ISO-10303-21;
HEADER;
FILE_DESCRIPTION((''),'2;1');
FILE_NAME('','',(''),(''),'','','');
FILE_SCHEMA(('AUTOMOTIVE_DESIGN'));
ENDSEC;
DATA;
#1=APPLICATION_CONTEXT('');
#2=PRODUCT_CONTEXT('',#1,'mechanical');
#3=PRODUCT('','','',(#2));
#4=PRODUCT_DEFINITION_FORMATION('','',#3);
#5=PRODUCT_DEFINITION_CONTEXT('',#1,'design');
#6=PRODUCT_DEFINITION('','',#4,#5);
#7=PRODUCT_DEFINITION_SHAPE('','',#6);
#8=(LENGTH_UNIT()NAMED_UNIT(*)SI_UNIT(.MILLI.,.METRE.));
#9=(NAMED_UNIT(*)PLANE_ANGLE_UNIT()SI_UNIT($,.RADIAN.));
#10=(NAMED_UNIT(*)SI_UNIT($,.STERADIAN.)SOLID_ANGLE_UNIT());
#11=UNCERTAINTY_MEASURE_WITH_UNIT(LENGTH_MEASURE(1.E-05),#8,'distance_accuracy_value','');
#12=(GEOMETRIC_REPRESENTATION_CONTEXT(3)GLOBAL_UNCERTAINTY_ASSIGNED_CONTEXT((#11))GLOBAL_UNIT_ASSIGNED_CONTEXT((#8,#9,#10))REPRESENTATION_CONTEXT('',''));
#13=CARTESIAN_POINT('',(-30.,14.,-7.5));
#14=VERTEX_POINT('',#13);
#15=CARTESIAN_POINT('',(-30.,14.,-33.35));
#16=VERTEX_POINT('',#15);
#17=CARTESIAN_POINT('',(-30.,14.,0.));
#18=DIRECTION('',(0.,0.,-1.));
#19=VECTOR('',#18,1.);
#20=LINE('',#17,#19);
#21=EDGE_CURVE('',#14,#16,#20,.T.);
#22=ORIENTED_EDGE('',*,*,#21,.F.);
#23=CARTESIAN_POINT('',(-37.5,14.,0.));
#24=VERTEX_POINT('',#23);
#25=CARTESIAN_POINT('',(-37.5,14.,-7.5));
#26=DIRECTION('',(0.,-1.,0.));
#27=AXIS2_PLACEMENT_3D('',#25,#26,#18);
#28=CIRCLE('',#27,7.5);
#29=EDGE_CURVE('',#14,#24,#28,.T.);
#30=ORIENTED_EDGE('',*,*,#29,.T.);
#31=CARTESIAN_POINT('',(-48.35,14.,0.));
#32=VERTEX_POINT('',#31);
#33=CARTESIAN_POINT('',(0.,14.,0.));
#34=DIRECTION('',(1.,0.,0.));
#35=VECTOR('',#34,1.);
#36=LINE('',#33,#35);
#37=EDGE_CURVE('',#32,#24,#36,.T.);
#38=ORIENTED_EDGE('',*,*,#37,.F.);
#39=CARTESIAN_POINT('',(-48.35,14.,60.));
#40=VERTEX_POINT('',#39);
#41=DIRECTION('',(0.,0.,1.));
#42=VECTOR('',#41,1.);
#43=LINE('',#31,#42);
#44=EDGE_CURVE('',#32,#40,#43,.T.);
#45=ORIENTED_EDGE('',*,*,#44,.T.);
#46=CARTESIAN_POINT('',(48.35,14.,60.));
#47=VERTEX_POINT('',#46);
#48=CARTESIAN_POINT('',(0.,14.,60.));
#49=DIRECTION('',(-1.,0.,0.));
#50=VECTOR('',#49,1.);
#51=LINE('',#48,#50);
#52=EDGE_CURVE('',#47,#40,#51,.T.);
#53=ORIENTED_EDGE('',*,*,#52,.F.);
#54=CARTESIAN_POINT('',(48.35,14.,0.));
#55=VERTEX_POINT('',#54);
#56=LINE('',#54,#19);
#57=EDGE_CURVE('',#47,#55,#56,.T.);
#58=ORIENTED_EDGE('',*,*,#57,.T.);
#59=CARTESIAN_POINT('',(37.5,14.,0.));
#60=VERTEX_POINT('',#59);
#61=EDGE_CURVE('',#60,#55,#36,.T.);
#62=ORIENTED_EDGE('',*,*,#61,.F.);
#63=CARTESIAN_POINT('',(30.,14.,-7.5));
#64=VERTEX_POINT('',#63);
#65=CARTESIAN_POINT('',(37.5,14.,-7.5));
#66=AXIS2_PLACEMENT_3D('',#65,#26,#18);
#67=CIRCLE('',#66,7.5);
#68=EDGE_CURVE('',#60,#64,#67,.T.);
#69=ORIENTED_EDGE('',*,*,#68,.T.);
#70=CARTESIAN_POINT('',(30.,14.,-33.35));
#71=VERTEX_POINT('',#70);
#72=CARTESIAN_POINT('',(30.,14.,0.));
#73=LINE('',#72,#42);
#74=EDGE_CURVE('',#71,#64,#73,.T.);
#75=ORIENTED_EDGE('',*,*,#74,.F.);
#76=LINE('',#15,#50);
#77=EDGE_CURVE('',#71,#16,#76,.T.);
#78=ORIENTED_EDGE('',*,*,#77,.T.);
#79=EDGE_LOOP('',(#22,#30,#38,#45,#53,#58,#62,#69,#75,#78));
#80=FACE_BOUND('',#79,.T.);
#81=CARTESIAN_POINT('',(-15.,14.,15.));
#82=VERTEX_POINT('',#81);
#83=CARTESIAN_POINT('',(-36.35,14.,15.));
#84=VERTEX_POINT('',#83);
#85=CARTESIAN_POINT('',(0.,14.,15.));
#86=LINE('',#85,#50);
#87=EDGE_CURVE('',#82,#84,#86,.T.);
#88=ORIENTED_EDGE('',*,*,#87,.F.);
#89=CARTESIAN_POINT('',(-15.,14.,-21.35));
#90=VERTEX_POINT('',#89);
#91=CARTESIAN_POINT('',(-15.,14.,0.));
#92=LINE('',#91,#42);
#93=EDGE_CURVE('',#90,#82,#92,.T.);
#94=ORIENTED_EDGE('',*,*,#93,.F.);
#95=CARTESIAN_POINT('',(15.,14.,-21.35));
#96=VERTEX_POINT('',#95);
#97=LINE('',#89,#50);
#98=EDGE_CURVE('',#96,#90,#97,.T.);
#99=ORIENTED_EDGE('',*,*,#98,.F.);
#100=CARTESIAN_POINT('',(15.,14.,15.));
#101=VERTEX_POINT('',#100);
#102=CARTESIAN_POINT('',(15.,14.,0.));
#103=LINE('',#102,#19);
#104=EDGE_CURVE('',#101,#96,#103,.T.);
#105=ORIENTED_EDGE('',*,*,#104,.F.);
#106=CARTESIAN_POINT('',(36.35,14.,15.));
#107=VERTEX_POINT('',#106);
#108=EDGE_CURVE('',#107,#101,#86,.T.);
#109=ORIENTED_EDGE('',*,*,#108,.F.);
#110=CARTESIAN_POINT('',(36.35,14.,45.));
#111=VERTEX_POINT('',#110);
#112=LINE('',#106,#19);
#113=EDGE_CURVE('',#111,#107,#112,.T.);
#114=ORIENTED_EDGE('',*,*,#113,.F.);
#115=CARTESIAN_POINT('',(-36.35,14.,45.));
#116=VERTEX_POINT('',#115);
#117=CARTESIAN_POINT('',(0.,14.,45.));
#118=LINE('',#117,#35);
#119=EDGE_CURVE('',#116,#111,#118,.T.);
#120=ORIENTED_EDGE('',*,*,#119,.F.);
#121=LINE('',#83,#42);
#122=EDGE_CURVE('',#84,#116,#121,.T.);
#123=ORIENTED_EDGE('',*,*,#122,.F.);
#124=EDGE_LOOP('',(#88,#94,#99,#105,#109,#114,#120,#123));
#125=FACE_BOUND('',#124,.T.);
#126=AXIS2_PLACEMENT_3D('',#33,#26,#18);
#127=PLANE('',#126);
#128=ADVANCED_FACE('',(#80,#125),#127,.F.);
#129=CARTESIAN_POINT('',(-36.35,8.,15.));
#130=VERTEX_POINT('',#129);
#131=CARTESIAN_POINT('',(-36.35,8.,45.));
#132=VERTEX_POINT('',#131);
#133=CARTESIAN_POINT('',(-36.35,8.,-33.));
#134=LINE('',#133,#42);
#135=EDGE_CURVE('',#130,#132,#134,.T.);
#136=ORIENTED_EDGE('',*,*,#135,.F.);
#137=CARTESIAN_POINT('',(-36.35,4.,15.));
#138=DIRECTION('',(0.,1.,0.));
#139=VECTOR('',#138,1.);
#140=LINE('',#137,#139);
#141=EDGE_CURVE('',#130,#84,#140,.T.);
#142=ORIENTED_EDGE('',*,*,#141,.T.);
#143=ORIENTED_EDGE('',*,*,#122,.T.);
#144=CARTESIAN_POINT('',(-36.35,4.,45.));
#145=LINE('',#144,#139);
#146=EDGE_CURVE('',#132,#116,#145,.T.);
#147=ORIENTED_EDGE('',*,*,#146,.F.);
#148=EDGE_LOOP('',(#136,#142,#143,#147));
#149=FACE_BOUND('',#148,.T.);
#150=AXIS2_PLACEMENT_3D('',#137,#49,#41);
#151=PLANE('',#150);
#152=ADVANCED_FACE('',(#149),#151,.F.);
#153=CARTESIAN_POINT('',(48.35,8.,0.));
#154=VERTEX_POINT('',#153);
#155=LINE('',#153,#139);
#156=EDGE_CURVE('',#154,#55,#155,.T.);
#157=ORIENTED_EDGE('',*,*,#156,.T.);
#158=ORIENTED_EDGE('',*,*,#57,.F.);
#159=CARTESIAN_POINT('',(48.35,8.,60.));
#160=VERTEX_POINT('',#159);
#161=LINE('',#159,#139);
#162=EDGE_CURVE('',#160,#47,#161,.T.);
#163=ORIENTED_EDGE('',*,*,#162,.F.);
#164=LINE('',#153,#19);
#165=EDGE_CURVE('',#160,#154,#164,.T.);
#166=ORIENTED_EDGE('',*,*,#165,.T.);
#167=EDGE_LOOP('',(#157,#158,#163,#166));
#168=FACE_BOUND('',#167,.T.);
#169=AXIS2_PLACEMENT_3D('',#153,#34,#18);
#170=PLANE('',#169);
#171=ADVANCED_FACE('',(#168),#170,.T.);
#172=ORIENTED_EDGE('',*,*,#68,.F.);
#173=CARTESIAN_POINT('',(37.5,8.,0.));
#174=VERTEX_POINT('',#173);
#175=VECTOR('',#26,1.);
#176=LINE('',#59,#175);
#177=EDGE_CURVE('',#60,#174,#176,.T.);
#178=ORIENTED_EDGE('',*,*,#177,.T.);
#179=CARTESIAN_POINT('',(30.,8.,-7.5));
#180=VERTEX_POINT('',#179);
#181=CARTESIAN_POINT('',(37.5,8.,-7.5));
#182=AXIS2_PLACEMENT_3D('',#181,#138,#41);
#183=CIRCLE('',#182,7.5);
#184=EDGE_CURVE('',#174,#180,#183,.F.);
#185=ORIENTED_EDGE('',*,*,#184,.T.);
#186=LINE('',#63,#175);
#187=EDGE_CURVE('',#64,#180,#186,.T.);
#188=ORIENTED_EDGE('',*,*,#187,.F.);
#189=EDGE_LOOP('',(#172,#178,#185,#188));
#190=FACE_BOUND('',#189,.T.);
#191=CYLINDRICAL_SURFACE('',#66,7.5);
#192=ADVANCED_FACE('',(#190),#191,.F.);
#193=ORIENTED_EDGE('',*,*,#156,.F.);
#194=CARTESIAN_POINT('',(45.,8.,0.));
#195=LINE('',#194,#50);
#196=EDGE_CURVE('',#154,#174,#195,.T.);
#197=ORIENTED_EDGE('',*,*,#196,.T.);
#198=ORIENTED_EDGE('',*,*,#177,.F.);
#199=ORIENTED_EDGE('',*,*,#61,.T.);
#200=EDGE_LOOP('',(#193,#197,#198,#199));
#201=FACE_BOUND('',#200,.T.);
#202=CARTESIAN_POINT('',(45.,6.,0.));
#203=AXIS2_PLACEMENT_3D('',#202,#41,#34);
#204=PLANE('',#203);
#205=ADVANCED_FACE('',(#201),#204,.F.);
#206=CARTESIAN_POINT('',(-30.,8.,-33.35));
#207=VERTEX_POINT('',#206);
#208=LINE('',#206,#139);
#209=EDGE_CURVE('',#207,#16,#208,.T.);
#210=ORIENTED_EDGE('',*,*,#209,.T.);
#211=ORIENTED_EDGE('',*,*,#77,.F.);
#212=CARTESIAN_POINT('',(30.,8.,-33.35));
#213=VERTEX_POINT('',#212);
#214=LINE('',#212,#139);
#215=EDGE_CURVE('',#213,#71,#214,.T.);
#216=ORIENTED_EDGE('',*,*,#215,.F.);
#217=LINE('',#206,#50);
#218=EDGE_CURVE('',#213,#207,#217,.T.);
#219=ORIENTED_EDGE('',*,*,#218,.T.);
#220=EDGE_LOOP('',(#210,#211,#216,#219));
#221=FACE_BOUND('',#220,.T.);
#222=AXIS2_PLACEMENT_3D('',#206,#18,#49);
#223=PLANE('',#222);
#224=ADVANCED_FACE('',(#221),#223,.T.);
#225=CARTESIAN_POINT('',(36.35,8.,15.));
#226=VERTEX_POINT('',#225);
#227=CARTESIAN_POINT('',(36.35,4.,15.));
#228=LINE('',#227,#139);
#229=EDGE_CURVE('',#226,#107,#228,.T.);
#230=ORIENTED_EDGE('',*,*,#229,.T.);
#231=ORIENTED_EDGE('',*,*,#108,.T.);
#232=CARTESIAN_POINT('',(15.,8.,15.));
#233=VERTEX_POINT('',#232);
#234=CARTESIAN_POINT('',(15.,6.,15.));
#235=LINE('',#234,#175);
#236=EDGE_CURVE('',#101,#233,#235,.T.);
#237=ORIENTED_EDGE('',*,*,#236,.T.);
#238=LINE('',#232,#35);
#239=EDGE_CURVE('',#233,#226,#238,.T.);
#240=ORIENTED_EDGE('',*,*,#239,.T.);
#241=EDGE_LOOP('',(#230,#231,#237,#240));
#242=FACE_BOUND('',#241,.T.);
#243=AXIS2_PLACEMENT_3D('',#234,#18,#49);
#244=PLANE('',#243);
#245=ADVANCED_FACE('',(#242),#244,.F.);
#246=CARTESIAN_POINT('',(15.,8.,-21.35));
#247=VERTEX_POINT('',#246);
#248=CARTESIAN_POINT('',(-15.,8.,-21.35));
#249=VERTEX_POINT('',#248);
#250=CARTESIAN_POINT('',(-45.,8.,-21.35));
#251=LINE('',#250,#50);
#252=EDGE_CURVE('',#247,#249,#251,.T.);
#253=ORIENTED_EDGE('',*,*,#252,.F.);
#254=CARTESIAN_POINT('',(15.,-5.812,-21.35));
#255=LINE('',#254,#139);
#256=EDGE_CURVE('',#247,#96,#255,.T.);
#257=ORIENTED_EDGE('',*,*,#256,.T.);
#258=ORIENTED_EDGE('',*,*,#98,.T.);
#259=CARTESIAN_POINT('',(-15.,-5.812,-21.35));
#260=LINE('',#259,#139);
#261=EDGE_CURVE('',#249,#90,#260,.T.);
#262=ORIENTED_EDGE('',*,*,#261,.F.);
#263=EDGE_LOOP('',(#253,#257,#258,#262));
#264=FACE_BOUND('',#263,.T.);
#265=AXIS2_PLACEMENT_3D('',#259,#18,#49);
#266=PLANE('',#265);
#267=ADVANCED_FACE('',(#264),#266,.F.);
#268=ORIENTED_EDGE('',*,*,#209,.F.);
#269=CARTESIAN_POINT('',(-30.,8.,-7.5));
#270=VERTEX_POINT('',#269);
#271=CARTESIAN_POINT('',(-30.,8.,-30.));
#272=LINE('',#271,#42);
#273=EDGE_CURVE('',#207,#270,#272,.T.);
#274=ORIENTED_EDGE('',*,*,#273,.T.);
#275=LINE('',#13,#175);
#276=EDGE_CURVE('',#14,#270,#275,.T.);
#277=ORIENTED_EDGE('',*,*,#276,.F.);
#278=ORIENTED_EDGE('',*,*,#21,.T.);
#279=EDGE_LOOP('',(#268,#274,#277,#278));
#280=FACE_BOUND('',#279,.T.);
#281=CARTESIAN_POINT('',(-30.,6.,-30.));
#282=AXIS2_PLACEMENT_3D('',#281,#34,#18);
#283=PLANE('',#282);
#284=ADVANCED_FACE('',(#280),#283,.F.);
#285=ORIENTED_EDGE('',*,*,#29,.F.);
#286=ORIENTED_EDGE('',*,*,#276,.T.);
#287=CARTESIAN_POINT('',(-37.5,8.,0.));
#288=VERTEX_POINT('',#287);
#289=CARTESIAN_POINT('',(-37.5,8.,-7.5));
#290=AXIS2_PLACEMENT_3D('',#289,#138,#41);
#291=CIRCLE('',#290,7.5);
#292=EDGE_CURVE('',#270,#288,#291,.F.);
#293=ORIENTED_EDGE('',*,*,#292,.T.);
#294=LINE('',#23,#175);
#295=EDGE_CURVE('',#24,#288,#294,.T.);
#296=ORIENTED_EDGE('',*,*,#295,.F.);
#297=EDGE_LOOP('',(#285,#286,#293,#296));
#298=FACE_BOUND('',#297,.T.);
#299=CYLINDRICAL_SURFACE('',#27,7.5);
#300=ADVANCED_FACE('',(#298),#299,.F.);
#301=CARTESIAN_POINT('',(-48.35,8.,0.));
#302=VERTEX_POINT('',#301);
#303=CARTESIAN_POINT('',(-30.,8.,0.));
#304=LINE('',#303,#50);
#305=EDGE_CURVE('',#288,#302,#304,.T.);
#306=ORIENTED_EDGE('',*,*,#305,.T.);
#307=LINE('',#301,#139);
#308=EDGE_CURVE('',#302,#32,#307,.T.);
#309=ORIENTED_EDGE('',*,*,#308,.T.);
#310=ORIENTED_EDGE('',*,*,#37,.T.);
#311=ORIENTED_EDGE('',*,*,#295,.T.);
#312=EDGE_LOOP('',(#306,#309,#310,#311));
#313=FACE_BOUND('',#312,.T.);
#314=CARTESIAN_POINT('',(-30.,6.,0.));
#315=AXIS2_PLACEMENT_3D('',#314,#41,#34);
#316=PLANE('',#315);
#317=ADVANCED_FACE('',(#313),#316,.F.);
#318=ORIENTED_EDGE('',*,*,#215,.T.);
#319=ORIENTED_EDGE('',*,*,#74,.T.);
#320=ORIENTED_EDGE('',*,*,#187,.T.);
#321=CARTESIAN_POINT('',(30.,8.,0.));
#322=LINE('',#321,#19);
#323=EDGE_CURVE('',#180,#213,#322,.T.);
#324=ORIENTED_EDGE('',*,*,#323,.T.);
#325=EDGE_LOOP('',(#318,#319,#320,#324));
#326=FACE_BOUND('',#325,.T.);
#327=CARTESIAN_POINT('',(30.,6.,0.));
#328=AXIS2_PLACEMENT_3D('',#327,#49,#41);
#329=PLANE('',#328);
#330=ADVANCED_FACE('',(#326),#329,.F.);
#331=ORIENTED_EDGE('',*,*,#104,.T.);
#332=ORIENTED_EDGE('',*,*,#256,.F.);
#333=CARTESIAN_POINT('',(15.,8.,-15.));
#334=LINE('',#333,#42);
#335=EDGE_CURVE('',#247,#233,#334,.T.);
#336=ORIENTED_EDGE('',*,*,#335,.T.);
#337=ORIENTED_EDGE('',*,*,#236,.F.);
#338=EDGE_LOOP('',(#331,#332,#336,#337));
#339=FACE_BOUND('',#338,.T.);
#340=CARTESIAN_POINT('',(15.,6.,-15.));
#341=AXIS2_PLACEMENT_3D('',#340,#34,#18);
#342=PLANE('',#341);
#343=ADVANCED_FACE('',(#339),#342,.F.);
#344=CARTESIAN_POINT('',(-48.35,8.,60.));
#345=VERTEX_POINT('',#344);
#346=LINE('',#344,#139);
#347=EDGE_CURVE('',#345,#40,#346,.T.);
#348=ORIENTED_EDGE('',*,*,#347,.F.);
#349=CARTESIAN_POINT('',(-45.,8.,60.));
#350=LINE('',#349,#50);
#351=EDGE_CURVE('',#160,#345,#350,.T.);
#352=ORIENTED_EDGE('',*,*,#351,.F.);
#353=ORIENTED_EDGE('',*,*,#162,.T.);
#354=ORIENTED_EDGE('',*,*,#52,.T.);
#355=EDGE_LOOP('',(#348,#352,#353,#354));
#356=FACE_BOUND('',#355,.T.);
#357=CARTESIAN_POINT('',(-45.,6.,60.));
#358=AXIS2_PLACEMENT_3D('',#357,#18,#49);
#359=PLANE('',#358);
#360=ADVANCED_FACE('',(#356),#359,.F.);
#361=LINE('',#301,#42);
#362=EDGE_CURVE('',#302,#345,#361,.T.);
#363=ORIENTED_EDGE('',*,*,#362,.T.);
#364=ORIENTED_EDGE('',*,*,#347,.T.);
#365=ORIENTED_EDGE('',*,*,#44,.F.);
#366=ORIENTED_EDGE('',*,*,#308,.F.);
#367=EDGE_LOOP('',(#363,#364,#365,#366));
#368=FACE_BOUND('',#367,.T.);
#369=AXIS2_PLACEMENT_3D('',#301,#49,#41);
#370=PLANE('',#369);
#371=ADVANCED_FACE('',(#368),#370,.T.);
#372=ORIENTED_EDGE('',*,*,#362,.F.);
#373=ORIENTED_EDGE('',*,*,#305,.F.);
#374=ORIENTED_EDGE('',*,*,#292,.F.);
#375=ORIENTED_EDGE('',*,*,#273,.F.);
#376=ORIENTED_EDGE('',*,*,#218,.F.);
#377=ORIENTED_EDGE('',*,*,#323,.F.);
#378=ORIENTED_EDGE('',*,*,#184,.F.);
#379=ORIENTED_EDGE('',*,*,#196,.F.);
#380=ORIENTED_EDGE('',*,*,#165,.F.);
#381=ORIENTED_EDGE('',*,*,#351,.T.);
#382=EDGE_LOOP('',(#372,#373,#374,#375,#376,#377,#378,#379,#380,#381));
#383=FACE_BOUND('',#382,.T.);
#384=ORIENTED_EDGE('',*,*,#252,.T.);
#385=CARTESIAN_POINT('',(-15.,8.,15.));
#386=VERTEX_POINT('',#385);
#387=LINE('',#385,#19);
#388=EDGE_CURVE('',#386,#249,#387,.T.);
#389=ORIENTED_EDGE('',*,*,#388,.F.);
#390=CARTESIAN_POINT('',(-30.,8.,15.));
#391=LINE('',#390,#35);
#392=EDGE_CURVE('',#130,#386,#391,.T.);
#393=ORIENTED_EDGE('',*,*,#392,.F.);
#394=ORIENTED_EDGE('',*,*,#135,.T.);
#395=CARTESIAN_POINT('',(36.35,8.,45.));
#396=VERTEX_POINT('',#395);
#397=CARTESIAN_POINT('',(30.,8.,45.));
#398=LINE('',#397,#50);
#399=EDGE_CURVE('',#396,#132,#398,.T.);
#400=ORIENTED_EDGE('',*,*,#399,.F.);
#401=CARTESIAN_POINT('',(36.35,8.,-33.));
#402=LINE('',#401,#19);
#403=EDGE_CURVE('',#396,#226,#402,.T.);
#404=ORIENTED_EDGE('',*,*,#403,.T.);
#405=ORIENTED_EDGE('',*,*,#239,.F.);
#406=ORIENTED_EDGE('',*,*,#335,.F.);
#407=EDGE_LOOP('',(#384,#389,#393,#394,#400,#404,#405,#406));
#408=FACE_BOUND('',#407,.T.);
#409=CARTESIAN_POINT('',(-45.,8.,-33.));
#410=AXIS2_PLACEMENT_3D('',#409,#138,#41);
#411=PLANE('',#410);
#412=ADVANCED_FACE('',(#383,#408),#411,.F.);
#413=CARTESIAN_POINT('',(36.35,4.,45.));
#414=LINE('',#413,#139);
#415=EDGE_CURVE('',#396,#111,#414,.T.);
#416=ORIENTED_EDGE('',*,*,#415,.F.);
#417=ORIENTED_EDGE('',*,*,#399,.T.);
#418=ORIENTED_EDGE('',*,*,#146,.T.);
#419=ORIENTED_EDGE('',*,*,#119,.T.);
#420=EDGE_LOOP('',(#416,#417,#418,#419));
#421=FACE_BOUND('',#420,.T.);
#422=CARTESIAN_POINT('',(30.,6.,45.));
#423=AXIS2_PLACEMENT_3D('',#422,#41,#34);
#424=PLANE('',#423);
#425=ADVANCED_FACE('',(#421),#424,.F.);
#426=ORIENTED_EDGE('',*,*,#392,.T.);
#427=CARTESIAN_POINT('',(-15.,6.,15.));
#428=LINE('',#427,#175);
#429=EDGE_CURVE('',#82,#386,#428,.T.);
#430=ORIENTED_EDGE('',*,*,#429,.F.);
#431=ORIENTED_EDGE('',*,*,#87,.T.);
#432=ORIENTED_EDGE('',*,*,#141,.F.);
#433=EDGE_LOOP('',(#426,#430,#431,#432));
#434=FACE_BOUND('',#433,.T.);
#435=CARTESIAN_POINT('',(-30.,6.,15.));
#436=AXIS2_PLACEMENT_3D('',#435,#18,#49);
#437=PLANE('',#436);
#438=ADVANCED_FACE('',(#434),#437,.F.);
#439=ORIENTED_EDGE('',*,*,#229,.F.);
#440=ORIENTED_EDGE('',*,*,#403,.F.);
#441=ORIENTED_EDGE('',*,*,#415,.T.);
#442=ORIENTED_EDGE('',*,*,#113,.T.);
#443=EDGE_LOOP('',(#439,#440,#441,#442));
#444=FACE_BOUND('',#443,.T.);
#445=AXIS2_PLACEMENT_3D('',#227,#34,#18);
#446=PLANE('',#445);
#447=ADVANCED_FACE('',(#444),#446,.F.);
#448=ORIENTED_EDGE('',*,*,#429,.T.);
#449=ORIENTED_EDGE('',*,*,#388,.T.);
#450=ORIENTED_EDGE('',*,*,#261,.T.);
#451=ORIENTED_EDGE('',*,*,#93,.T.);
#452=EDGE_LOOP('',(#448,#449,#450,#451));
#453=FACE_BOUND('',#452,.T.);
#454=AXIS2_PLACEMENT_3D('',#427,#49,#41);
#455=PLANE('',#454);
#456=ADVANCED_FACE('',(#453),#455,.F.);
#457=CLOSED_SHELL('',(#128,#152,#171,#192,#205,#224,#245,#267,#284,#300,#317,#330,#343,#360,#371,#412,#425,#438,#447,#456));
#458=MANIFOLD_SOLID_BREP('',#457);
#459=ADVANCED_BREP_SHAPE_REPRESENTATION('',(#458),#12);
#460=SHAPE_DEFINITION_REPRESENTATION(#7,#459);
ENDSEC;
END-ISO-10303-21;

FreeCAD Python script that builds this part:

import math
import FreeCAD as App
import Part
import Sketcher

V = App.Vector
Q = App.Units.Quantity

doc = App.newDocument("Part")
body = doc.addObject("PartDesign::Body", "Body")

# Sketch on XZ plane
sketch1 = doc.addObject("Sketcher::SketchObject", "Sketch")
body.addObject(sketch1)
sketch1.AttachmentSupport = (doc.XZ_Plane, [""])
sketch1.MapMode = "FlatFace"
sketch1.addGeometry([
    Part.LineSegment(V(-15, -15, 0), V(-15, 15, 0)),
    Part.LineSegment(V(-15, 15, 0), V(15, 15, 0)),
    Part.LineSegment(V(15, 15, 0), V(15, -15, 0)),
    Part.LineSegment(V(15, -15, 0), V(-15, -15, 0)),
], False)
sketch1.addConstraint([
    Sketcher.Constraint("Coincident", 0, 2, 1, 1),
    Sketcher.Constraint("Coincident", 1, 2, 2, 1),
    Sketcher.Constraint("Coincident", 2, 2, 3, 1),
    Sketcher.Constraint("Coincident", 3, 2, 0, 1),
    Sketcher.Constraint("Vertical", 0),
    Sketcher.Constraint("Horizontal", 1),
    Sketcher.Constraint("Vertical", 2),
    Sketcher.Constraint("Horizontal", 3),
    Sketcher.Constraint("Symmetric", 0, 2, 2, 2, -1, 1),
    Sketcher.Constraint("Equal", 3, 0),
    Sketcher.Constraint("DistanceX", 1, 1, 1, 2, Q("30 mm")),
])
pad1 = doc.addObject("PartDesign::Pad", "Pad")
body.addObject(pad1)
pad1.Profile = sketch1
pad1.Length = 3
pad1.Reversed = True
body2 = doc.addObject("PartDesign::Body", "Body001")

# Sketch on XZ plane
sketch2 = doc.addObject("Sketcher::SketchObject", "Sketch001")
body2.addObject(sketch2)
sketch2.AttachmentSupport = (doc.getObject("XZ_Plane001"), [""])
sketch2.MapMode = "FlatFace"
sketch2.AttachmentOffset = App.Placement(V(0, 0, -3), App.Rotation())
sketch2.addGeometry([
    Part.LineSegment(V(-30, 15, 0), V(-30, 45, 0)),
    Part.LineSegment(V(-30, 45, 0), V(-15, 45, 0)),
    Part.LineSegment(V(-15, 45, 0), V(-15, 15, 0)),
    Part.LineSegment(V(-15, 15, 0), V(-30, 15, 0)),
], False)
sketch2.addConstraint([
    Sketcher.Constraint("Coincident", 0, 2, 1, 1),
    Sketcher.Constraint("Coincident", 1, 2, 2, 1),
    Sketcher.Constraint("Coincident", 2, 2, 3, 1),
    Sketcher.Constraint("Coincident", 3, 2, 0, 1),
    Sketcher.Constraint("Vertical", 0),
    Sketcher.Constraint("Horizontal", 1),
    Sketcher.Constraint("Vertical", 2),
    Sketcher.Constraint("Horizontal", 3),
    Sketcher.Constraint("DistanceX", 1, 1, 1, 2, Q("15 mm")),
    Sketcher.Constraint("DistanceY", 0, 1, 0, 2, Q("30 mm")),
    Sketcher.Constraint("DistanceX", 0, 2, -1, 1, Q("30 mm")),
    Sketcher.Constraint("DistanceY", -1, 1, 0, 2, Q("45 mm")),
])
pad2 = doc.addObject("PartDesign::Pad", "Pad001")
body2.addObject(pad2)
pad2.Profile = sketch2
pad2.Length = 3
body3 = doc.addObject("PartDesign::Body", "Body002")

# Sketch on XZ plane
sketch3 = doc.addObject("Sketcher::SketchObject", "Sketch002")
body3.addObject(sketch3)
sketch3.AttachmentSupport = (doc.getObject("XZ_Plane002"), [""])
sketch3.MapMode = "FlatFace"
sketch3.AttachmentOffset = App.Placement(V(0, 0, -3), App.Rotation())
sketch3.addGeometry([
    Part.LineSegment(V(15, 15, 0), V(15, 45, 0)),
    Part.LineSegment(V(15, 45, 0), V(30, 45, 0)),
    Part.LineSegment(V(30, 45, 0), V(30, 15, 0)),
    Part.LineSegment(V(30, 15, 0), V(15, 15, 0)),
], False)
sketch3.addConstraint([
    Sketcher.Constraint("Coincident", 0, 2, 1, 1),
    Sketcher.Constraint("Coincident", 1, 2, 2, 1),
    Sketcher.Constraint("Coincident", 2, 2, 3, 1),
    Sketcher.Constraint("Coincident", 3, 2, 0, 1),
    Sketcher.Constraint("Vertical", 0),
    Sketcher.Constraint("Horizontal", 1),
    Sketcher.Constraint("Vertical", 2),
    Sketcher.Constraint("Horizontal", 3),
    Sketcher.Constraint("DistanceX", 1, 1, 1, 2, Q("15 mm")),
    Sketcher.Constraint("DistanceY", 0, 1, 0, 2, Q("30 mm")),
    Sketcher.Constraint("DistanceX", -1, 1, 0, 2, Q("15 mm")),
    Sketcher.Constraint("DistanceY", -1, 1, 0, 2, Q("45 mm")),
])
pad3 = doc.addObject("PartDesign::Pad", "Pad002")
body3.addObject(pad3)
pad3.Profile = sketch3
pad3.Length = 3
body.AllowCompound = True
doc.recompute()

boolean = doc.addObject("PartDesign::Boolean", "Boolean")
body.addObject(boolean)
boolean.Type = "Fuse"
boolean.addObjects([body2])
doc.recompute()

boolean2 = doc.addObject("PartDesign::Boolean", "Boolean001")
body.addObject(boolean2)
boolean2.Type = "Fuse"
boolean2.addObjects([body3])

# Sketch on XZ plane
sketch4 = doc.addObject("Sketcher::SketchObject", "Sketch003")
body.addObject(sketch4)
sketch4.AttachmentSupport = (doc.XZ_Plane, [""])
sketch4.MapMode = "FlatFace"
sketch4.AttachmentOffset = App.Placement(V(0, 0, -3), App.Rotation())
sketch4.addGeometry([
    Part.LineSegment(V(-15, 15, 0), V(-15, 45, 0)),
    Part.LineSegment(V(-15, 45, 0), V(15, 45, 0)),
    Part.LineSegment(V(15, 45, 0), V(15, 15, 0)),
    Part.LineSegment(V(15, 15, 0), V(-15, 15, 0)),
], False)
sketch4.addConstraint([
    Sketcher.Constraint("Coincident", 0, 2, 1, 1),
    Sketcher.Constraint("Coincident", 1, 2, 2, 1),
    Sketcher.Constraint("Coincident", 2, 2, 3, 1),
    Sketcher.Constraint("Coincident", 3, 2, 0, 1),
    Sketcher.Constraint("Vertical", 0),
    Sketcher.Constraint("Horizontal", 1),
    Sketcher.Constraint("Vertical", 2),
    Sketcher.Constraint("Horizontal", 3),
    Sketcher.Constraint("Equal", 3, 0),
    Sketcher.Constraint("DistanceX", 1, 1, 1, 2, Q("30 mm")),
    Sketcher.Constraint("DistanceX", 0, 2, -1, 1, Q("15 mm")),
    Sketcher.Constraint("DistanceY", -1, 1, 0, 2, Q("45 mm")),
])
pad4 = doc.addObject("PartDesign::Pad", "Pad003")
body.addObject(pad4)
pad4.Profile = sketch4
pad4.Length = 3

# Sketch on XZ plane
sketch5 = doc.addObject("Sketcher::SketchObject", "Sketch004")
body.addObject(sketch5)
sketch5.AttachmentSupport = (doc.XZ_Plane, [""])
sketch5.MapMode = "FlatFace"
sketch5.AttachmentOffset = App.Placement(V(0, 0, -3), App.Rotation())
sketch5.addGeometry([
    Part.LineSegment(V(-30, 0, 0), V(-45, 0, 0)),  # 0
    Part.LineSegment(V(-45, 0, 0), V(-45, 60, 0)),  # 1
    Part.LineSegment(V(-45, 60, 0), V(45, 60, 0)),  # 2
    Part.LineSegment(V(45, 60, 0), V(45, 0, 0)),  # 3
    Part.LineSegment(V(45, 0, 0), V(30, 0, 0)),  # 4
    Part.LineSegment(V(30, 0, 0), V(30, -30, 0)),  # 5
    Part.LineSegment(V(30, -30, 0), V(-30, -30, 0)),  # 6
    Part.LineSegment(V(-30, -30, 0), V(-30, 0, 0)),  # 7
], False)
sketch5.addConstraint([
    Sketcher.Constraint("Coincident", 0, 2, 1, 1),
    Sketcher.Constraint("Coincident", 1, 2, 2, 1),
    Sketcher.Constraint("Coincident", 2, 2, 3, 1),
    Sketcher.Constraint("Coincident", 3, 2, 4, 1),
    Sketcher.Constraint("Coincident", 4, 2, 5, 1),
    Sketcher.Constraint("Coincident", 5, 2, 6, 1),
    Sketcher.Constraint("Coincident", 6, 2, 7, 1),
    Sketcher.Constraint("Coincident", 7, 2, 0, 1),
    Sketcher.Constraint("Horizontal", 0),
    Sketcher.Constraint("Vertical", 1),
    Sketcher.Constraint("Horizontal", 2),
    Sketcher.Constraint("Vertical", 3),
    Sketcher.Constraint("Horizontal", 4),
    Sketcher.Constraint("Vertical", 5),
    Sketcher.Constraint("Horizontal", 6),
    Sketcher.Constraint("Vertical", 7),
    Sketcher.Constraint("Symmetric", 0, 2, 3, 2, -1, 1),
    Sketcher.Constraint("Symmetric", 4, 2, 7, 2, -2),
    Sketcher.Constraint("Equal", 6, 1),
    Sketcher.Constraint("DistanceX", 0, 2, 0, 1, Q("15 mm")),
    Sketcher.Constraint("DistanceX", 2, 1, 2, 2, Q("90 mm")),
    Sketcher.Constraint("DistanceY", 5, 2, 5, 1, Q("30 mm")),
])
pad5 = doc.addObject("PartDesign::Pad", "Pad004")
body.addObject(pad5)
pad5.Profile = sketch5
pad5.Length = 3
pad5.Reversed = True

# Sketch on XZ plane
sketch6 = doc.addObject("Sketcher::SketchObject", "Sketch005")
body.addObject(sketch6)
sketch6.AttachmentSupport = (doc.XZ_Plane, [""])
sketch6.MapMode = "FlatFace"
sketch6.addGeometry([
    Part.LineSegment(V(-30, 45, 0), V(-30, 15, 0)),  # 0
    Part.LineSegment(V(-30, 15, 0), V(-15, 15, 0)),  # 1
    Part.LineSegment(V(-15, 15, 0), V(-15, -15, 0)),  # 2
    Part.LineSegment(V(-15, -15, 0), V(15, -15, 0)),  # 3
    Part.LineSegment(V(15, -15, 0), V(15, 15, 0)),  # 4
    Part.LineSegment(V(15, 15, 0), V(30, 15, 0)),  # 5
    Part.LineSegment(V(30, 15, 0), V(30, 45, 0)),  # 6
    Part.LineSegment(V(30, 45, 0), V(-30, 45, 0)),  # 7
], False)
sketch6.addConstraint([
    Sketcher.Constraint("Coincident", 0, 2, 1, 1),
    Sketcher.Constraint("Coincident", 1, 2, 2, 1),
    Sketcher.Constraint("Coincident", 2, 2, 3, 1),
    Sketcher.Constraint("Coincident", 3, 2, 4, 1),
    Sketcher.Constraint("Coincident", 4, 2, 5, 1),
    Sketcher.Constraint("Coincident", 5, 2, 6, 1),
    Sketcher.Constraint("Coincident", 6, 2, 7, 1),
    Sketcher.Constraint("Coincident", 7, 2, 0, 1),
    Sketcher.Constraint("Vertical", 0),
    Sketcher.Constraint("Horizontal", 1),
    Sketcher.Constraint("Vertical", 2),
    Sketcher.Constraint("Horizontal", 3),
    Sketcher.Constraint("Vertical", 4),
    Sketcher.Constraint("Horizontal", 5),
    Sketcher.Constraint("Vertical", 6),
    Sketcher.Constraint("Horizontal", 7),
    Sketcher.Constraint("Symmetric", 1, 2, 3, 2, -1, 1),
    Sketcher.Constraint("Symmetric", 0, 2, 5, 2, -2),
    Sketcher.Constraint("Equal", 3, 0),
    Sketcher.Constraint("Equal", 0, 2),
    Sketcher.Constraint("DistanceX", 1, 1, 1, 2, Q("15 mm")),
    Sketcher.Constraint("DistanceX", 3, 1, 3, 2, Q("30 mm")),
])
pocket1 = doc.addObject("PartDesign::Pocket", "Pocket")
body.addObject(pocket1)
pocket1.Profile = sketch6
pocket1.Length = 6

# Sketch on XZ plane
sketch7 = doc.addObject("Sketcher::SketchObject", "Sketch006")
body.addObject(sketch7)
sketch7.AttachmentSupport = (doc.XZ_Plane, [""])
sketch7.MapMode = "FlatFace"
sketch7.AttachmentOffset = App.Placement(V(0, 0, -3), App.Rotation())
sketch7.addGeometry([
    Part.LineSegment(V(-45, 0, 0), V(-38, 0, 0)),  # 0
    Part.ArcOfCircle(Part.Circle(V(-38, -8, 0), V(0, 0, 1), 8), math.radians(0), math.radians(90)),  # 1
    Part.LineSegment(V(-30, -8, 0), V(-30, -30, 0)),  # 2
    Part.LineSegment(V(-30, -30, 0), V(30, -30, 0)),  # 3
    Part.LineSegment(V(30, -30, 0), V(30, -8, 0)),  # 4
    Part.ArcOfCircle(Part.Circle(V(38, -8, 0), V(0, 0, 1), 8), math.radians(90), math.radians(180)),  # 5
    Part.LineSegment(V(38, 0, 0), V(45, 0, 0)),  # 6
    Part.LineSegment(V(45, 0, 0), V(45, 60, 0)),  # 7
    Part.LineSegment(V(45, 60, 0), V(-45, 60, 0)),  # 8
    Part.LineSegment(V(-45, 60, 0), V(-45, 0, 0)),  # 9
    Part.LineSegment(V(-15, -15, 0), V(-15, 15, 0)),  # 10
    Part.LineSegment(V(-15, 15, 0), V(-30, 15, 0)),  # 11
    Part.LineSegment(V(-30, 15, 0), V(-30, 45, 0)),  # 12
    Part.LineSegment(V(-30, 45, 0), V(30, 45, 0)),  # 13
    Part.LineSegment(V(30, 45, 0), V(30, 15, 0)),  # 14
    Part.LineSegment(V(30, 15, 0), V(15, 15, 0)),  # 15
    Part.LineSegment(V(15, 15, 0), V(15, -15, 0)),  # 16
    Part.LineSegment(V(15, -15, 0), V(-15, -15, 0)),  # 17
], False)
sketch7.addConstraint([
    Sketcher.Constraint("Tangent", 0, 2, 1, 2),
    Sketcher.Constraint("Tangent", 1, 1, 2, 1),
    Sketcher.Constraint("Coincident", 2, 2, 3, 1),
    Sketcher.Constraint("Coincident", 3, 2, 4, 1),
    Sketcher.Constraint("Tangent", 4, 2, 5, 2),
    Sketcher.Constraint("Tangent", 5, 1, 6, 1),
    Sketcher.Constraint("Coincident", 6, 2, 7, 1),
    Sketcher.Constraint("Coincident", 7, 2, 8, 1),
    Sketcher.Constraint("Coincident", 8, 2, 9, 1),
    Sketcher.Constraint("Coincident", 9, 2, 0, 1),
    Sketcher.Constraint("Coincident", 10, 2, 11, 1),
    Sketcher.Constraint("Coincident", 11, 2, 12, 1),
    Sketcher.Constraint("Coincident", 12, 2, 13, 1),
    Sketcher.Constraint("Coincident", 13, 2, 14, 1),
    Sketcher.Constraint("Coincident", 14, 2, 15, 1),
    Sketcher.Constraint("Coincident", 15, 2, 16, 1),
    Sketcher.Constraint("Coincident", 16, 2, 17, 1),
    Sketcher.Constraint("Coincident", 17, 2, 10, 1),
    Sketcher.Constraint("Horizontal", 0),
    Sketcher.Constraint("Vertical", 2),
    Sketcher.Constraint("Horizontal", 3),
    Sketcher.Constraint("Vertical", 4),
    Sketcher.Constraint("Horizontal", 6),
    Sketcher.Constraint("Vertical", 7),
    Sketcher.Constraint("Horizontal", 8),
    Sketcher.Constraint("Vertical", 9),
    Sketcher.Constraint("Vertical", 10),
    Sketcher.Constraint("Horizontal", 11),
    Sketcher.Constraint("Vertical", 12),
    Sketcher.Constraint("Horizontal", 13),
    Sketcher.Constraint("Vertical", 14),
    Sketcher.Constraint("Horizontal", 15),
    Sketcher.Constraint("Vertical", 16),
    Sketcher.Constraint("Horizontal", 17),
    Sketcher.Constraint("Equal", 1, 5),
    Sketcher.Constraint("Symmetric", 0, 2, 5, 1, -1, 1),
    Sketcher.Constraint("Symmetric", 10, 2, 16, 2, -1, 1),
    Sketcher.Constraint("Symmetric", 6, 2, 9, 2, -2),
    Sketcher.Constraint("Symmetric", 11, 2, 14, 2, -2),
    Sketcher.Constraint("Vertical", 2, 2, 11, 2),
    Sketcher.Constraint("Equal", 13, 7),
    Sketcher.Constraint("Equal", 17, 10),
    Sketcher.Constraint("Equal", 10, 12),
    Sketcher.Constraint("Radius", 1, Q("7.5 mm")),
    Sketcher.Constraint("DistanceX", 3, 1, 3, 2, Q("60 mm")),
    Sketcher.Constraint("DistanceX", 8, 2, 8, 1, Q("90 mm")),
    Sketcher.Constraint("DistanceX", 11, 2, 11, 1, Q("15 mm")),
    Sketcher.Constraint("DistanceY", 2, 2, 2, 1, Q("22.5 mm")),
])
pad6 = doc.addObject("PartDesign::Pad", "Pad005")
body.addObject(pad6)
pad6.Profile = sketch7
pad6.Length = 11
pad6.Reversed = True

# Sketch on XZ plane
sketch8 = doc.addObject("Sketcher::SketchObject", "Sketch007")
body.addObject(sketch8)
sketch8.AttachmentSupport = (doc.XZ_Plane, [""])
sketch8.MapMode = "FlatFace"
sketch8.AttachmentOffset = App.Placement(V(0, 0, -14), App.Rotation())
sketch8.addGeometry([
    Part.LineSegment(V(-15, -18.2, 0), V(-15, -15, 0)),
    Part.LineSegment(V(-15, -15, 0), V(15, -15, 0)),
    Part.LineSegment(V(15, -15, 0), V(15, -18.2, 0)),
    Part.LineSegment(V(15, -18.2, 0), V(-15, -18.2, 0)),
], False)
sketch8.addConstraint([
    Sketcher.Constraint("Coincident", 0, 2, 1, 1),
    Sketcher.Constraint("Coincident", 1, 2, 2, 1),
    Sketcher.Constraint("Coincident", 2, 2, 3, 1),
    Sketcher.Constraint("Coincident", 3, 2, 0, 1),
    Sketcher.Constraint("Vertical", 0),
    Sketcher.Constraint("Horizontal", 1),
    Sketcher.Constraint("Vertical", 2),
    Sketcher.Constraint("Horizontal", 3),
    Sketcher.Constraint("DistanceX", 1, 1, 1, 2, Q("30 mm")),
    Sketcher.Constraint("DistanceX", 0, 2, -1, 1, Q("15 mm")),
    Sketcher.Constraint("DistanceY", 0, 2, -1, 1, Q("15 mm")),
    Sketcher.Constraint("DistanceY", 0, 1, 0, 2, Q("3.175 mm")),
])
pocket2 = doc.addObject("PartDesign::Pocket", "Pocket001")
body.addObject(pocket2)
pocket2.Profile = sketch8
pocket2.Length = 18.542
pocket2.Reversed = True

# Sketch on XZ plane
sketch9 = doc.addObject("Sketcher::SketchObject", "Sketch008")
body.addObject(sketch9)
sketch9.AttachmentSupport = (doc.XZ_Plane, [""])
sketch9.MapMode = "FlatFace"
sketch9.AttachmentOffset = App.Placement(V(0, 0, -14), App.Rotation())
sketch9.addGeometry([
    Part.LineSegment(V(-30, -30.18, 0), V(-30, -30, 0)),
    Part.LineSegment(V(-30, -30, 0), V(30, -30, 0)),
    Part.LineSegment(V(30, -30, 0), V(30, -30.18, 0)),
    Part.LineSegment(V(30, -30.18, 0), V(-30, -30.18, 0)),
], False)
sketch9.addConstraint([
    Sketcher.Constraint("Coincident", 0, 2, 1, 1),
    Sketcher.Constraint("Coincident", 1, 2, 2, 1),
    Sketcher.Constraint("Coincident", 2, 2, 3, 1),
    Sketcher.Constraint("Coincident", 3, 2, 0, 1),
    Sketcher.Constraint("Vertical", 0),
    Sketcher.Constraint("Horizontal", 1),
    Sketcher.Constraint("Vertical", 2),
    Sketcher.Constraint("Horizontal", 3),
    Sketcher.Constraint("DistanceX", 1, 1, 1, 2, Q("60 mm")),
    Sketcher.Constraint("DistanceX", 0, 2, -1, 1, Q("30 mm")),
    Sketcher.Constraint("DistanceY", 0, 2, -1, 1, Q("30 mm")),
    Sketcher.Constraint("DistanceY", 0, 1, 0, 2, Q("0.175 mm")),
])
pad7 = doc.addObject("PartDesign::Pad", "Pad006")
body.addObject(pad7)
pad7.Profile = sketch9
pad7.Length = 11

# Sketch on XY plane
sketch10 = doc.addObject("Sketcher::SketchObject", "Sketch009")
body.addObject(sketch10)
sketch10.AttachmentSupport = (doc.XY_Plane, [""])
sketch10.MapMode = "FlatFace"
sketch10.AttachmentOffset = App.Placement(V(0, 0, 60), App.Rotation())
sketch10.addGeometry([
    Part.LineSegment(V(-45, 8, 0), V(-45, 3, 0)),
    Part.LineSegment(V(-45, 3, 0), V(45, 3, 0)),
    Part.LineSegment(V(45, 3, 0), V(45, 8, 0)),
    Part.LineSegment(V(45, 8, 0), V(-45, 8, 0)),
], False)
sketch10.addConstraint([
    Sketcher.Constraint("Coincident", 0, 2, 1, 1),
    Sketcher.Constraint("Coincident", 1, 2, 2, 1),
    Sketcher.Constraint("Coincident", 2, 2, 3, 1),
    Sketcher.Constraint("Coincident", 3, 2, 0, 1),
    Sketcher.Constraint("Vertical", 0),
    Sketcher.Constraint("Horizontal", 1),
    Sketcher.Constraint("Vertical", 2),
    Sketcher.Constraint("Horizontal", 3),
    Sketcher.Constraint("DistanceX", 1, 1, 1, 2, Q("90 mm")),
    Sketcher.Constraint("DistanceY", 0, 2, 0, 1, Q("5 mm")),
    Sketcher.Constraint("DistanceX", 0, 2, -1, 1, Q("45 mm")),
    Sketcher.Constraint("DistanceY", -1, 1, 0, 2, Q("3 mm")),
])
pocket3 = doc.addObject("PartDesign::Pocket", "Pocket002")
body.addObject(pocket3)
pocket3.Profile = sketch10
pocket3.Length = 93

# Sketch on XZ plane
sketch11 = doc.addObject("Sketcher::SketchObject", "Sketch010")
body.addObject(sketch11)
sketch11.AttachmentSupport = (doc.XZ_Plane, [""])
sketch11.MapMode = "FlatFace"
sketch11.AttachmentOffset = App.Placement(V(0, 0, -14), App.Rotation())
sketch11.addGeometry([
    Part.LineSegment(V(-15, -18.2, 0), V(-15, -15, 0)),
    Part.LineSegment(V(-15, -15, 0), V(15, -15, 0)),
    Part.LineSegment(V(15, -15, 0), V(15, -18.2, 0)),
    Part.LineSegment(V(15, -18.2, 0), V(-15, -18.2, 0)),
], False)
sketch11.addConstraint([
    Sketcher.Constraint("Coincident", 0, 2, 1, 1),
    Sketcher.Constraint("Coincident", 1, 2, 2, 1),
    Sketcher.Constraint("Coincident", 2, 2, 3, 1),
    Sketcher.Constraint("Coincident", 3, 2, 0, 1),
    Sketcher.Constraint("Vertical", 0),
    Sketcher.Constraint("Horizontal", 1),
    Sketcher.Constraint("Vertical", 2),
    Sketcher.Constraint("Horizontal", 3),
    Sketcher.Constraint("DistanceX", 1, 1, 1, 2, Q("30 mm")),
    Sketcher.Constraint("DistanceX", 0, 2, -1, 1, Q("15 mm")),
    Sketcher.Constraint("DistanceY", 0, 2, -1, 1, Q("15 mm")),
    Sketcher.Constraint("DistanceY", 0, 1, 0, 2, Q("3.175 mm")),
])
pad8 = doc.addObject("PartDesign::Pad", "Pad007")
body.addObject(pad8)
pad8.Profile = sketch11
pad8.Length = 11

# Sketch on XZ plane
sketch12 = doc.addObject("Sketcher::SketchObject", "Sketch011")
body.addObject(sketch12)
sketch12.AttachmentSupport = (doc.XZ_Plane, [""])
sketch12.MapMode = "FlatFace"
sketch12.AttachmentOffset = App.Placement(V(0, 0, -14), App.Rotation())
sketch12.addGeometry([
    Part.LineSegment(V(-30, -30.18, 0), V(-30, -30, 0)),
    Part.LineSegment(V(-30, -30, 0), V(30, -30, 0)),
    Part.LineSegment(V(30, -30, 0), V(30, -30.18, 0)),
    Part.LineSegment(V(30, -30.18, 0), V(-30, -30.18, 0)),
], False)
sketch12.addConstraint([
    Sketcher.Constraint("Coincident", 0, 2, 1, 1),
    Sketcher.Constraint("Coincident", 1, 2, 2, 1),
    Sketcher.Constraint("Coincident", 2, 2, 3, 1),
    Sketcher.Constraint("Coincident", 3, 2, 0, 1),
    Sketcher.Constraint("Vertical", 0),
    Sketcher.Constraint("Horizontal", 1),
    Sketcher.Constraint("Vertical", 2),
    Sketcher.Constraint("Horizontal", 3),
    Sketcher.Constraint("DistanceX", 1, 1, 1, 2, Q("60 mm")),
    Sketcher.Constraint("DistanceX", 0, 2, -1, 1, Q("30 mm")),
    Sketcher.Constraint("DistanceY", 0, 2, -1, 1, Q("30 mm")),
    Sketcher.Constraint("DistanceY", 0, 1, 0, 2, Q("0.175 mm")),
])
pocket4 = doc.addObject("PartDesign::Pocket", "Pocket003")
body.addObject(pocket4)
pocket4.Profile = sketch12
pocket4.Length = 11
pocket4.Reversed = True

# Sketch on XZ plane
sketch13 = doc.addObject("Sketcher::SketchObject", "Sketch012")
body.addObject(sketch13)
sketch13.AttachmentSupport = (doc.XZ_Plane, [""])
sketch13.MapMode = "FlatFace"
sketch13.AttachmentOffset = App.Placement(V(0, 0, -14), App.Rotation())
sketch13.addGeometry([
    Part.LineSegment(V(-15, -21, 0), V(-15, -15, 0)),
    Part.LineSegment(V(-15, -15, 0), V(15, -15, 0)),
    Part.LineSegment(V(15, -15, 0), V(15, -21, 0)),
    Part.LineSegment(V(15, -21, 0), V(-15, -21, 0)),
], False)
sketch13.addConstraint([
    Sketcher.Constraint("Coincident", 0, 2, 1, 1),
    Sketcher.Constraint("Coincident", 1, 2, 2, 1),
    Sketcher.Constraint("Coincident", 2, 2, 3, 1),
    Sketcher.Constraint("Coincident", 3, 2, 0, 1),
    Sketcher.Constraint("Vertical", 0),
    Sketcher.Constraint("Horizontal", 1),
    Sketcher.Constraint("Vertical", 2),
    Sketcher.Constraint("Horizontal", 3),
    Sketcher.Constraint("DistanceX", 1, 1, 1, 2, Q("30 mm")),
    Sketcher.Constraint("DistanceX", 0, 2, -1, 1, Q("15 mm")),
    Sketcher.Constraint("DistanceY", 0, 2, -1, 1, Q("15 mm")),
    Sketcher.Constraint("DistanceY", 0, 1, 0, 2, Q("6.35 mm")),
])
pocket5 = doc.addObject("PartDesign::Pocket", "Pocket004")
body.addObject(pocket5)
pocket5.Profile = sketch13
pocket5.Length = 19.812
pocket5.Reversed = True

# Sketch on XZ plane
sketch14 = doc.addObject("Sketcher::SketchObject", "Sketch013")
body.addObject(sketch14)
sketch14.AttachmentSupport = (doc.XZ_Plane, [""])
sketch14.MapMode = "FlatFace"
sketch14.AttachmentOffset = App.Placement(V(0, 0, -14), App.Rotation())
sketch14.addGeometry([
    Part.LineSegment(V(-30, -33, 0), V(-30, -27, 0)),
    Part.LineSegment(V(-30, -27, 0), V(30, -27, 0)),
    Part.LineSegment(V(30, -27, 0), V(30, -33, 0)),
    Part.LineSegment(V(30, -33, 0), V(-30, -33, 0)),
], False)
sketch14.addConstraint([
    Sketcher.Constraint("Coincident", 0, 2, 1, 1),
    Sketcher.Constraint("Coincident", 1, 2, 2, 1),
    Sketcher.Constraint("Coincident", 2, 2, 3, 1),
    Sketcher.Constraint("Coincident", 3, 2, 0, 1),
    Sketcher.Constraint("Vertical", 0),
    Sketcher.Constraint("Horizontal", 1),
    Sketcher.Constraint("Vertical", 2),
    Sketcher.Constraint("Horizontal", 3),
    Sketcher.Constraint("DistanceX", 1, 1, 1, 2, Q("60 mm")),
    Sketcher.Constraint("DistanceX", 0, 2, -1, 1, Q("30 mm")),
    Sketcher.Constraint("DistanceY", 2, 2, -1, 1, Q("33.35 mm")),
    Sketcher.Constraint("DistanceY", 0, 1, 0, 2, Q("6.315381 mm")),
])
pad9 = doc.addObject("PartDesign::Pad", "Pad008")
body.addObject(pad9)
pad9.Profile = sketch14
pad9.Length = 6

# Sketch on XZ plane
sketch15 = doc.addObject("Sketcher::SketchObject", "Sketch014")
body.addObject(sketch15)
sketch15.AttachmentSupport = (doc.XZ_Plane, [""])
sketch15.MapMode = "FlatFace"
sketch15.AttachmentOffset = App.Placement(V(0, 0, -14), App.Rotation())
sketch15.addGeometry([
    Part.LineSegment(V(-36, 15, 0), V(-36, 45, 0)),  # 0
    Part.LineSegment(V(-36, 45, 0), V(-30, 45, 0)),  # 1
    Part.LineSegment(V(-30, 45, 0), V(-30, 15, 0)),  # 2
    Part.LineSegment(V(-30, 15, 0), V(-36, 15, 0)),  # 3
    Part.LineSegment(V(30, 15, 0), V(30, 45, 0)),  # 4
    Part.LineSegment(V(30, 45, 0), V(36, 45, 0)),  # 5
    Part.LineSegment(V(36, 45, 0), V(36, 15, 0)),  # 6
    Part.LineSegment(V(36, 15, 0), V(30, 15, 0)),  # 7
], False)
sketch15.addConstraint([
    Sketcher.Constraint("Coincident", 0, 2, 1, 1),
    Sketcher.Constraint("Coincident", 1, 2, 2, 1),
    Sketcher.Constraint("Coincident", 2, 2, 3, 1),
    Sketcher.Constraint("Coincident", 3, 2, 0, 1),
    Sketcher.Constraint("Coincident", 4, 2, 5, 1),
    Sketcher.Constraint("Coincident", 5, 2, 6, 1),
    Sketcher.Constraint("Coincident", 6, 2, 7, 1),
    Sketcher.Constraint("Coincident", 7, 2, 4, 1),
    Sketcher.Constraint("Vertical", 0),
    Sketcher.Constraint("Horizontal", 1),
    Sketcher.Constraint("Vertical", 2),
    Sketcher.Constraint("Horizontal", 3),
    Sketcher.Constraint("Vertical", 4),
    Sketcher.Constraint("Horizontal", 5),
    Sketcher.Constraint("Vertical", 6),
    Sketcher.Constraint("Horizontal", 7),
    Sketcher.Constraint("Symmetric", 1, 2, 4, 2, -2),
    Sketcher.Constraint("Symmetric", 3, 2, 6, 2, -2),
    Sketcher.Constraint("DistanceY", 0, 1, 0, 2, Q("30 mm")),
    Sketcher.Constraint("DistanceY", -1, 1, 0, 2, Q("45 mm")),
    Sketcher.Constraint("DistanceX", 1, 2, -1, 1, Q("30 mm")),
    Sketcher.Constraint("DistanceX", 1, 1, 1, 2, Q("6.35 mm")),
])
pocket6 = doc.addObject("PartDesign::Pocket", "Pocket005")
body.addObject(pocket6)
pocket6.Profile = sketch15
pocket6.Length = 10
pocket6.Reversed = True

# Sketch on XZ plane
sketch16 = doc.addObject("Sketcher::SketchObject", "Sketch015")
body.addObject(sketch16)
sketch16.AttachmentSupport = (doc.XZ_Plane, [""])
sketch16.MapMode = "FlatFace"
sketch16.AttachmentOffset = App.Placement(V(0, 0, -14), App.Rotation())
sketch16.addGeometry([
    Part.LineSegment(V(-48.4, 0, 0), V(-48.4, 60, 0)),  # 0
    Part.LineSegment(V(-48.4, 60, 0), V(-45, 60, 0)),  # 1
    Part.LineSegment(V(-45, 60, 0), V(-45, 0, 0)),  # 2
    Part.LineSegment(V(-45, 0, 0), V(-48.4, 0, 0)),  # 3
    Part.LineSegment(V(45, 0, 0), V(45, 60, 0)),  # 4
    Part.LineSegment(V(45, 60, 0), V(48.4, 60, 0)),  # 5
    Part.LineSegment(V(48.4, 60, 0), V(48.4, 0, 0)),  # 6
    Part.LineSegment(V(48.4, 0, 0), V(45, 0, 0)),  # 7
], False)
sketch16.addConstraint([
    Sketcher.Constraint("Coincident", 0, 2, 1, 1),
    Sketcher.Constraint("Coincident", 1, 2, 2, 1),
    Sketcher.Constraint("Coincident", 2, 2, 3, 1),
    Sketcher.Constraint("Coincident", 3, 2, 0, 1),
    Sketcher.Constraint("Coincident", 4, 2, 5, 1),
    Sketcher.Constraint("Coincident", 5, 2, 6, 1),
    Sketcher.Constraint("Coincident", 6, 2, 7, 1),
    Sketcher.Constraint("Coincident", 7, 2, 4, 1),
    Sketcher.Constraint("Vertical", 0),
    Sketcher.Constraint("Horizontal", 1),
    Sketcher.Constraint("Vertical", 2),
    Sketcher.Constraint("Horizontal", 3),
    Sketcher.Constraint("Vertical", 4),
    Sketcher.Constraint("Horizontal", 5),
    Sketcher.Constraint("Vertical", 6),
    Sketcher.Constraint("Horizontal", 7),
    Sketcher.Constraint("Symmetric", 3, 2, 6, 2, -1, 1),
    Sketcher.Constraint("Symmetric", 1, 2, 4, 2, -2),
    Sketcher.Constraint("PointOnObject", 2, 2, -1),
    Sketcher.Constraint("DistanceY", 0, 1, 0, 2, Q("60 mm")),
    Sketcher.Constraint("DistanceX", 1, 2, -1, 1, Q("45 mm")),
    Sketcher.Constraint("DistanceX", 1, 1, 1, 2, Q("3.35 mm")),
])
pad10 = doc.addObject("PartDesign::Pad", "Pad009")
body.addObject(pad10)
pad10.Profile = sketch16
pad10.Length = 6

doc.recompute()
